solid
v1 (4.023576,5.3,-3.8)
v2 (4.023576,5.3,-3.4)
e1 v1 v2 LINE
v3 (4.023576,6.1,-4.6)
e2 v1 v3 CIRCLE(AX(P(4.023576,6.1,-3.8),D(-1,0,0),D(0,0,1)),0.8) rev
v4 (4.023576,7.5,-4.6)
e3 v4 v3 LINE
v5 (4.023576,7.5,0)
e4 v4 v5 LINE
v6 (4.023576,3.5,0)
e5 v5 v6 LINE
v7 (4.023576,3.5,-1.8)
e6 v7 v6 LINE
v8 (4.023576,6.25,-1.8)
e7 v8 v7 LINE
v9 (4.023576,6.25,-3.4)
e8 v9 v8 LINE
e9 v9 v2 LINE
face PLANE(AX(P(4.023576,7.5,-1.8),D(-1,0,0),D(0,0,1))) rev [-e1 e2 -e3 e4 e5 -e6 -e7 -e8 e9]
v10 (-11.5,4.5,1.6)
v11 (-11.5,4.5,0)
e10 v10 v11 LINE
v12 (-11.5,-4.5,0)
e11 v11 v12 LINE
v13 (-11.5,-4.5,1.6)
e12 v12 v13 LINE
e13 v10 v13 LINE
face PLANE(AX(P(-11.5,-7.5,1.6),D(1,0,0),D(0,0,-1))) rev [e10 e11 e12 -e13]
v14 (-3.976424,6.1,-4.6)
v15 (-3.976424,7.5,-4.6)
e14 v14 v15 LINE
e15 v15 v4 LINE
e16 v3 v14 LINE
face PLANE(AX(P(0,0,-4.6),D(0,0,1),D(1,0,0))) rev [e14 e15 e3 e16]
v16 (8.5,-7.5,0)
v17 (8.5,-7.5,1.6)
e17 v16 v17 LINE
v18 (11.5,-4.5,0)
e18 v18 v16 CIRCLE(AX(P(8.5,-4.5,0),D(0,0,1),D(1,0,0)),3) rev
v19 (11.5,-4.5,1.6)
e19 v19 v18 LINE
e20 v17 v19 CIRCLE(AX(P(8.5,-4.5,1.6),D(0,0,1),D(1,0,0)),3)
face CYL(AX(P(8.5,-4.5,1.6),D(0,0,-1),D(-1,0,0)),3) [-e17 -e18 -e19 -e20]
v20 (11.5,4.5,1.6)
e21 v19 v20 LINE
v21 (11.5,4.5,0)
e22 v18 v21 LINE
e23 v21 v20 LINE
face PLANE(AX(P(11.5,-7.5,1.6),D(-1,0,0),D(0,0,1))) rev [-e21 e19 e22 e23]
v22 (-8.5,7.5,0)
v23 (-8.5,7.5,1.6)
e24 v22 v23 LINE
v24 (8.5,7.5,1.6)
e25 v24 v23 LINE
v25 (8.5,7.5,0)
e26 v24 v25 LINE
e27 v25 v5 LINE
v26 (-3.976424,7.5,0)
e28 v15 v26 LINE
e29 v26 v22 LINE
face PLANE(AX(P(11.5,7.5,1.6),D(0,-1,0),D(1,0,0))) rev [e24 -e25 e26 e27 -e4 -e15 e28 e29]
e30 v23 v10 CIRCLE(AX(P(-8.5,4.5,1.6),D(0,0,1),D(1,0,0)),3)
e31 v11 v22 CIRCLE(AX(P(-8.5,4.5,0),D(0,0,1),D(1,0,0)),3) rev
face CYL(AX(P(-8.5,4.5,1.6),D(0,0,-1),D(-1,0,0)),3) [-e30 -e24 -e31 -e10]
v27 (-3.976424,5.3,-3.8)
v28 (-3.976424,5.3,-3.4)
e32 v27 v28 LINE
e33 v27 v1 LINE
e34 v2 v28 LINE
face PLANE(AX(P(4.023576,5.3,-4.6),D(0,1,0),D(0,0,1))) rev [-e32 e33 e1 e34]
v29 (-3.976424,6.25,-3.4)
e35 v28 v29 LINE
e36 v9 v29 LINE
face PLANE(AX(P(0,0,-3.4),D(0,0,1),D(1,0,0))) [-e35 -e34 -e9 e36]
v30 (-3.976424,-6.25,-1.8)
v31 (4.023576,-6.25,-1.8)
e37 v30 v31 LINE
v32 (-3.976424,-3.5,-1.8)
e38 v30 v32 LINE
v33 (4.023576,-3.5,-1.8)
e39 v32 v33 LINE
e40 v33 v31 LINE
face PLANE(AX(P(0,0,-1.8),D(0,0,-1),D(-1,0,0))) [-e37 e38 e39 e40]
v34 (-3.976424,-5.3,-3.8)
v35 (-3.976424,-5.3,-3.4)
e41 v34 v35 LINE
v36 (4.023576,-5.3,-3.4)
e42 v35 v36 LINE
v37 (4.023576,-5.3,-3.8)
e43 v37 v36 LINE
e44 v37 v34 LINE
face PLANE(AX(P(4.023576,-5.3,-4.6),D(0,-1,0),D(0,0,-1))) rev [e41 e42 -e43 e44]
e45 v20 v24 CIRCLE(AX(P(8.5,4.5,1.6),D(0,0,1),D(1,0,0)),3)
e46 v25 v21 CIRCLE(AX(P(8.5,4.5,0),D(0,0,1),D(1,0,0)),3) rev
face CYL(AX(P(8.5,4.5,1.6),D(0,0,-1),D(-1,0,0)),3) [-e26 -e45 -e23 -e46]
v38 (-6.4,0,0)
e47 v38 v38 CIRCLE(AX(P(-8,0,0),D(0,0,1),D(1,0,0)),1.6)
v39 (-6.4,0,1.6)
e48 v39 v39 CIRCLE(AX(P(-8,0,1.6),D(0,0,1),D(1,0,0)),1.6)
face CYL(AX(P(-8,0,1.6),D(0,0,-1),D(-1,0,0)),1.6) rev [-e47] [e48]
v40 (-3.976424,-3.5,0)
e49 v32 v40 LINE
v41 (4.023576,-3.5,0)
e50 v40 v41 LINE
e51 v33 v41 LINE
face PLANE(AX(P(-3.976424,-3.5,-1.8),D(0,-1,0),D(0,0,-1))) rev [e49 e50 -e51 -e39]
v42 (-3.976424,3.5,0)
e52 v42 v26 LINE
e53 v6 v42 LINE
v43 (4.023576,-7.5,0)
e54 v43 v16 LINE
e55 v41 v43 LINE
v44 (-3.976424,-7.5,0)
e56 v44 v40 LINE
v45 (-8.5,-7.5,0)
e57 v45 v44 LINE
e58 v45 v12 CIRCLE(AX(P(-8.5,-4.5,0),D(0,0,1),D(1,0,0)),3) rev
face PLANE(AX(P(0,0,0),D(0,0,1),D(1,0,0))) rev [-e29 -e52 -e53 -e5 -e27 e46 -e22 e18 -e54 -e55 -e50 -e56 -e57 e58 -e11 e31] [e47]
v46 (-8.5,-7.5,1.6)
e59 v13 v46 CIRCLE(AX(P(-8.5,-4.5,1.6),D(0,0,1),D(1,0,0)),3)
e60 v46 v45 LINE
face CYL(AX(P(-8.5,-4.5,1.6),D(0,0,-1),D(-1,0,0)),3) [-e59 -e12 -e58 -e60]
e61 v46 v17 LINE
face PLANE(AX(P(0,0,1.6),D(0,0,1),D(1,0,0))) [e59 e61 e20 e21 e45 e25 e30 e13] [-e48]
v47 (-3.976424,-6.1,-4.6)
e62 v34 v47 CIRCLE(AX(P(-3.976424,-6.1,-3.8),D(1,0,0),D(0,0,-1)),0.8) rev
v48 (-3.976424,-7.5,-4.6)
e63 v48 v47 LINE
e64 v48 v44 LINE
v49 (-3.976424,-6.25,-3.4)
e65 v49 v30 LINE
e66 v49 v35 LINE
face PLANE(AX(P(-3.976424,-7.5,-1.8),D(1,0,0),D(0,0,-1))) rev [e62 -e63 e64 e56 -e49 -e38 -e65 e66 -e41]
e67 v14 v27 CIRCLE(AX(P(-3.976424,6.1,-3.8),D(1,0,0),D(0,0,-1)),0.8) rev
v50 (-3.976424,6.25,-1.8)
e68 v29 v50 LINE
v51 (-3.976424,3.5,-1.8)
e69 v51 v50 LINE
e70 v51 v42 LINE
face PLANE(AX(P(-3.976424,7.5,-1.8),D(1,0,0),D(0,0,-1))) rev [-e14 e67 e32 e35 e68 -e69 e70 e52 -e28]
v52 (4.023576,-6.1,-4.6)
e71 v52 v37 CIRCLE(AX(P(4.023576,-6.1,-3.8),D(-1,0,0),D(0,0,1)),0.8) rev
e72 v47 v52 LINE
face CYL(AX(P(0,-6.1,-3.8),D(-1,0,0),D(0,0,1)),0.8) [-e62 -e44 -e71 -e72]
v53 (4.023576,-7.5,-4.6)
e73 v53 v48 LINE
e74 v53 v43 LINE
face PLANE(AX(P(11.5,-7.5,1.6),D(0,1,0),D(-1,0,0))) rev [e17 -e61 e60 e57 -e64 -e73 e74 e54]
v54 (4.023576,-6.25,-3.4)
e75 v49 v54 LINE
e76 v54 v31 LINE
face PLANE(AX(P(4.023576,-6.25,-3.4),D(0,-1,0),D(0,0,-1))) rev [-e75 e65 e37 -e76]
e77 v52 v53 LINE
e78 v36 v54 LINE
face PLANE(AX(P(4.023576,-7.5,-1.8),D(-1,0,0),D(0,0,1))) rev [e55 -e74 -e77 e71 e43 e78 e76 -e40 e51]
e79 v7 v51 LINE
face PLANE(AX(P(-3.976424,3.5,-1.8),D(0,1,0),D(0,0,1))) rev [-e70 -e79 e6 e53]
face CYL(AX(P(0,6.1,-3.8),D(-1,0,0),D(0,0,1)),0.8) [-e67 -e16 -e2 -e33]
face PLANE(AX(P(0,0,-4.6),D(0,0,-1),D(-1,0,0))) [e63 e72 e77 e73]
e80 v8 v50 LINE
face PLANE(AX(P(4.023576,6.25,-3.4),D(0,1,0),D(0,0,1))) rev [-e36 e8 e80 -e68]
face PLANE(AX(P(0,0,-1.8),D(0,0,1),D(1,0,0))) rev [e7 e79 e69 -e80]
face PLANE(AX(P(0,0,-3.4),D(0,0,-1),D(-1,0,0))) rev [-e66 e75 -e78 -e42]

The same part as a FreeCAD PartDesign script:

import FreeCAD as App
import Part
import Sketcher
from FreeCAD import Vector


def edges_at(feature, points):
    """Names of the edges that pass closest to the given points."""
    edges = feature.Shape.Edges
    near = lambda p: min(range(len(edges)), key=lambda i: edges[i].distToShape(Part.Vertex(*p))[0])
    return sorted({f"Edge{near(p) + 1}" for p in points})

doc = App.newDocument("Part")
body = doc.addObject("PartDesign::Body", "Body")

# Sketch on XY plane
sketch1 = body.newObject("Sketcher::SketchObject", "Sketch")
sketch1.AttachmentSupport = (doc.getObject("XY_Plane"), [""])
sketch1.MapMode = "FlatFace"
sketch1.addGeometry([
    Part.LineSegment(Vector(-11.5, 7.5, 0), Vector(-11.5, -7.5, 0)),  # 0
    Part.LineSegment(Vector(-11.5, -7.5, 0), Vector(11.5, -7.5, 0)),  # 1
    Part.LineSegment(Vector(11.5, -7.5, 0), Vector(11.5, 7.5, 0)),  # 2
    Part.LineSegment(Vector(11.5, 7.5, 0), Vector(-11.5, 7.5, 0)),  # 3
    Part.Circle(Vector(-8, 0, 0), Vector(0, 0, 1), 1.6),  # 4
], False)
sketch1.addConstraint([
    Sketcher.Constraint("Coincident", 0, 2, 1, 1),
    Sketcher.Constraint("Coincident", 1, 2, 2, 1),
    Sketcher.Constraint("Coincident", 2, 2, 3, 1),
    Sketcher.Constraint("Coincident", 3, 2, 0, 1),
    Sketcher.Constraint("Vertical", 0),
    Sketcher.Constraint("Horizontal", 1),
    Sketcher.Constraint("Vertical", 2),
    Sketcher.Constraint("Horizontal", 3),
    Sketcher.Constraint("Symmetric", 0, 2, 2, 2, -1, 1),
    Sketcher.Constraint("PointOnObject", 4, 3, -1),
    Sketcher.Constraint("Diameter", 4, 3.2),
    Sketcher.Constraint("DistanceX", 1, 1, 1, 2, 23.0),
    Sketcher.Constraint("DistanceY", 0, 2, 0, 1, 15.0),
    Sketcher.Constraint("DistanceX", 4, 3, -1, 1, 8.0),
])
pad1 = body.newObject("PartDesign::Pad", "Pad")
pad1.Profile = sketch1
pad1.Length = 1.6

# Sketch on XY plane
sketch2 = body.newObject("Sketcher::SketchObject", "Sketch001")
sketch2.AttachmentSupport = (doc.getObject("XY_Plane"), [""])
sketch2.MapMode = "FlatFace"
sketch2.addGeometry([
    Part.LineSegment(Vector(4, 7.5, 0), Vector(4, 3.5, 0)),  # 0
    Part.LineSegment(Vector(4, 3.5, 0), Vector(-4, 3.5, 0)),  # 1
    Part.LineSegment(Vector(-4, 3.5, 0), Vector(-4, 7.5, 0)),  # 2
    Part.LineSegment(Vector(-4, 7.5, 0), Vector(4, 7.5, 0)),  # 3
    Part.LineSegment(Vector(4, -3.5, 0), Vector(4, -7.5, 0)),  # 4
    Part.LineSegment(Vector(4, -7.5, 0), Vector(-4, -7.5, 0)),  # 5
    Part.LineSegment(Vector(-4, -7.5, 0), Vector(-4, -3.5, 0)),  # 6
    Part.LineSegment(Vector(-4, -3.5, 0), Vector(4, -3.5, 0)),  # 7
], False)
sketch2.addConstraint([
    Sketcher.Constraint("Coincident", 0, 2, 1, 1),
    Sketcher.Constraint("Coincident", 1, 2, 2, 1),
    Sketcher.Constraint("Coincident", 2, 2, 3, 1),
    Sketcher.Constraint("Coincident", 3, 2, 0, 1),
    Sketcher.Constraint("Coincident", 4, 2, 5, 1),
    Sketcher.Constraint("Coincident", 5, 2, 6, 1),
    Sketcher.Constraint("Coincident", 6, 2, 7, 1),
    Sketcher.Constraint("Coincident", 7, 2, 4, 1),
    Sketcher.Constraint("Vertical", 0),
    Sketcher.Constraint("Horizontal", 1),
    Sketcher.Constraint("Vertical", 2),
    Sketcher.Constraint("Horizontal", 3),
    Sketcher.Constraint("Vertical", 4),
    Sketcher.Constraint("Horizontal", 5),
    Sketcher.Constraint("Vertical", 6),
    Sketcher.Constraint("Horizontal", 7),
    Sketcher.Constraint("Symmetric", 3, 2, 4, 2, -1),
    Sketcher.Constraint("Symmetric", 1, 2, 6, 2, -1),
    Sketcher.Constraint("DistanceX", 1, 2, 1, 1, 8.0),
    Sketcher.Constraint("DistanceY", 0, 2, 0, 1, 4.0),
    Sketcher.Constraint("DistanceY", 4, 2, 0, 2, 11.0),
    Sketcher.Constraint("DistanceX", -1, 1, 0, 2, 4.023576),
])
pad2 = body.newObject("PartDesign::Pad", "Pad001")
pad2.Profile = sketch2
pad2.Length = 1.8
pad2.Reversed = True

# Sketch on XY plane
sketch3 = body.newObject("Sketcher::SketchObject", "Sketch002")
sketch3.AttachmentSupport = (doc.getObject("XY_Plane"), [""])
sketch3.MapMode = "FlatFace"
sketch3.AttachmentOffset = App.Placement(Vector(0, 0, -1.8), App.Rotation())
sketch3.addGeometry([
    Part.LineSegment(Vector(4, 7.5, 0), Vector(4, 6.2, 0)),  # 0
    Part.LineSegment(Vector(4, 6.2, 0), Vector(-4, 6.2, 0)),  # 1
    Part.LineSegment(Vector(-4, 6.2, 0), Vector(-4, 7.5, 0)),  # 2
    Part.LineSegment(Vector(-4, 7.5, 0), Vector(4, 7.5, 0)),  # 3
    Part.LineSegment(Vector(4, -6.2, 0), Vector(4, -7.5, 0)),  # 4
    Part.LineSegment(Vector(4, -7.5, 0), Vector(-4, -7.5, 0)),  # 5
    Part.LineSegment(Vector(-4, -7.5, 0), Vector(-4, -6.2, 0)),  # 6
    Part.LineSegment(Vector(-4, -6.2, 0), Vector(4, -6.2, 0)),  # 7
], False)
sketch3.addConstraint([
    Sketcher.Constraint("Coincident", 0, 2, 1, 1),
    Sketcher.Constraint("Coincident", 1, 2, 2, 1),
    Sketcher.Constraint("Coincident", 2, 2, 3, 1),
    Sketcher.Constraint("Coincident", 3, 2, 0, 1),
    Sketcher.Constraint("Coincident", 4, 2, 5, 1),
    Sketcher.Constraint("Coincident", 5, 2, 6, 1),
    Sketcher.Constraint("Coincident", 6, 2, 7, 1),
    Sketcher.Constraint("Coincident", 7, 2, 4, 1),
    Sketcher.Constraint("Vertical", 0),
    Sketcher.Constraint("Horizontal", 1),
    Sketcher.Constraint("Vertical", 2),
    Sketcher.Constraint("Horizontal", 3),
    Sketcher.Constraint("Vertical", 4),
    Sketcher.Constraint("Horizontal", 5),
    Sketcher.Constraint("Vertical", 6),
    Sketcher.Constraint("Horizontal", 7),
    Sketcher.Constraint("Symmetric", 3, 2, 4, 2, -1),
    Sketcher.Constraint("Symmetric", 1, 2, 6, 2, -1),
    Sketcher.Constraint("DistanceX", 1, 2, 1, 1, 8.0),
    Sketcher.Constraint("DistanceY", 4, 2, 3, 2, 15.0),
    Sketcher.Constraint("DistanceY", 0, 2, 0, 1, 1.25),
    Sketcher.Constraint("DistanceX", -1, 1, 0, 2, 4.023576),
])
pad3 = body.newObject("PartDesign::Pad", "Pad002")
pad3.Profile = sketch3
pad3.Length = 1.6
pad3.Reversed = True

# Sketch on XY plane
sketch4 = body.newObject("Sketcher::SketchObject", "Sketch003")
sketch4.AttachmentSupport = (doc.getObject("XY_Plane"), [""])
sketch4.MapMode = "FlatFace"
sketch4.AttachmentOffset = App.Placement(Vector(0, 0, -3.4), App.Rotation())
sketch4.addGeometry([
    Part.LineSegment(Vector(4, 7.5, 0), Vector(4, 5.3, 0)),  # 0
    Part.LineSegment(Vector(4, 5.3, 0), Vector(-4, 5.3, 0)),  # 1
    Part.LineSegment(Vector(-4, 5.3, 0), Vector(-4, 7.5, 0)),  # 2
    Part.LineSegment(Vector(-4, 7.5, 0), Vector(4, 7.5, 0)),  # 3
    Part.LineSegment(Vector(4, -5.3, 0), Vector(4, -7.5, 0)),  # 4
    Part.LineSegment(Vector(4, -7.5, 0), Vector(-4, -7.5, 0)),  # 5
    Part.LineSegment(Vector(-4, -7.5, 0), Vector(-4, -5.3, 0)),  # 6
    Part.LineSegment(Vector(-4, -5.3, 0), Vector(4, -5.3, 0)),  # 7
], False)
sketch4.addConstraint([
    Sketcher.Constraint("Coincident", 0, 2, 1, 1),
    Sketcher.Constraint("Coincident", 1, 2, 2, 1),
    Sketcher.Constraint("Coincident", 2, 2, 3, 1),
    Sketcher.Constraint("Coincident", 3, 2, 0, 1),
    Sketcher.Constraint("Coincident", 4, 2, 5, 1),
    Sketcher.Constraint("Coincident", 5, 2, 6, 1),
    Sketcher.Constraint("Coincident", 6, 2, 7, 1),
    Sketcher.Constraint("Coincident", 7, 2, 4, 1),
    Sketcher.Constraint("Vertical", 0),
    Sketcher.Constraint("Horizontal", 1),
    Sketcher.Constraint("Vertical", 2),
    Sketcher.Constraint("Horizontal", 3),
    Sketcher.Constraint("Vertical", 4),
    Sketcher.Constraint("Horizontal", 5),
    Sketcher.Constraint("Vertical", 6),
    Sketcher.Constraint("Horizontal", 7),
    Sketcher.Constraint("Symmetric", 3, 2, 4, 2, -1),
    Sketcher.Constraint("Symmetric", 1, 2, 6, 2, -1),
    Sketcher.Constraint("DistanceX", 1, 2, 1, 1, 8.0),
    Sketcher.Constraint("DistanceY", 0, 2, 0, 1, 2.2),
    Sketcher.Constraint("DistanceY", 4, 2, 3, 2, 15.0),
    Sketcher.Constraint("DistanceX", -1, 1, 0, 2, 4.023576),
])
pad4 = body.newObject("PartDesign::Pad", "Pad003")
pad4.Profile = sketch4
pad4.Length = 1.2
pad4.Reversed = True
doc.recompute()

fillet = body.newObject("PartDesign::Fillet", "Fillet")
fillet.Base = (pad4, edges_at(pad4, [(0.024, 5.3, -4.6), (0.024, -5.3, -4.6)]))
fillet.Radius = 0.8
doc.recompute()

fillet2 = body.newObject("PartDesign::Fillet", "Fillet001")
fillet2.Base = (fillet, edges_at(fillet, [
    (-11.5, 7.5, 0.8),
    (11.5, 7.5, 0.8),
    (11.5, -7.5, 0.8),
    (-11.5, -7.5, 0.8),
]))
fillet2.Radius = 3

doc.recompute()
